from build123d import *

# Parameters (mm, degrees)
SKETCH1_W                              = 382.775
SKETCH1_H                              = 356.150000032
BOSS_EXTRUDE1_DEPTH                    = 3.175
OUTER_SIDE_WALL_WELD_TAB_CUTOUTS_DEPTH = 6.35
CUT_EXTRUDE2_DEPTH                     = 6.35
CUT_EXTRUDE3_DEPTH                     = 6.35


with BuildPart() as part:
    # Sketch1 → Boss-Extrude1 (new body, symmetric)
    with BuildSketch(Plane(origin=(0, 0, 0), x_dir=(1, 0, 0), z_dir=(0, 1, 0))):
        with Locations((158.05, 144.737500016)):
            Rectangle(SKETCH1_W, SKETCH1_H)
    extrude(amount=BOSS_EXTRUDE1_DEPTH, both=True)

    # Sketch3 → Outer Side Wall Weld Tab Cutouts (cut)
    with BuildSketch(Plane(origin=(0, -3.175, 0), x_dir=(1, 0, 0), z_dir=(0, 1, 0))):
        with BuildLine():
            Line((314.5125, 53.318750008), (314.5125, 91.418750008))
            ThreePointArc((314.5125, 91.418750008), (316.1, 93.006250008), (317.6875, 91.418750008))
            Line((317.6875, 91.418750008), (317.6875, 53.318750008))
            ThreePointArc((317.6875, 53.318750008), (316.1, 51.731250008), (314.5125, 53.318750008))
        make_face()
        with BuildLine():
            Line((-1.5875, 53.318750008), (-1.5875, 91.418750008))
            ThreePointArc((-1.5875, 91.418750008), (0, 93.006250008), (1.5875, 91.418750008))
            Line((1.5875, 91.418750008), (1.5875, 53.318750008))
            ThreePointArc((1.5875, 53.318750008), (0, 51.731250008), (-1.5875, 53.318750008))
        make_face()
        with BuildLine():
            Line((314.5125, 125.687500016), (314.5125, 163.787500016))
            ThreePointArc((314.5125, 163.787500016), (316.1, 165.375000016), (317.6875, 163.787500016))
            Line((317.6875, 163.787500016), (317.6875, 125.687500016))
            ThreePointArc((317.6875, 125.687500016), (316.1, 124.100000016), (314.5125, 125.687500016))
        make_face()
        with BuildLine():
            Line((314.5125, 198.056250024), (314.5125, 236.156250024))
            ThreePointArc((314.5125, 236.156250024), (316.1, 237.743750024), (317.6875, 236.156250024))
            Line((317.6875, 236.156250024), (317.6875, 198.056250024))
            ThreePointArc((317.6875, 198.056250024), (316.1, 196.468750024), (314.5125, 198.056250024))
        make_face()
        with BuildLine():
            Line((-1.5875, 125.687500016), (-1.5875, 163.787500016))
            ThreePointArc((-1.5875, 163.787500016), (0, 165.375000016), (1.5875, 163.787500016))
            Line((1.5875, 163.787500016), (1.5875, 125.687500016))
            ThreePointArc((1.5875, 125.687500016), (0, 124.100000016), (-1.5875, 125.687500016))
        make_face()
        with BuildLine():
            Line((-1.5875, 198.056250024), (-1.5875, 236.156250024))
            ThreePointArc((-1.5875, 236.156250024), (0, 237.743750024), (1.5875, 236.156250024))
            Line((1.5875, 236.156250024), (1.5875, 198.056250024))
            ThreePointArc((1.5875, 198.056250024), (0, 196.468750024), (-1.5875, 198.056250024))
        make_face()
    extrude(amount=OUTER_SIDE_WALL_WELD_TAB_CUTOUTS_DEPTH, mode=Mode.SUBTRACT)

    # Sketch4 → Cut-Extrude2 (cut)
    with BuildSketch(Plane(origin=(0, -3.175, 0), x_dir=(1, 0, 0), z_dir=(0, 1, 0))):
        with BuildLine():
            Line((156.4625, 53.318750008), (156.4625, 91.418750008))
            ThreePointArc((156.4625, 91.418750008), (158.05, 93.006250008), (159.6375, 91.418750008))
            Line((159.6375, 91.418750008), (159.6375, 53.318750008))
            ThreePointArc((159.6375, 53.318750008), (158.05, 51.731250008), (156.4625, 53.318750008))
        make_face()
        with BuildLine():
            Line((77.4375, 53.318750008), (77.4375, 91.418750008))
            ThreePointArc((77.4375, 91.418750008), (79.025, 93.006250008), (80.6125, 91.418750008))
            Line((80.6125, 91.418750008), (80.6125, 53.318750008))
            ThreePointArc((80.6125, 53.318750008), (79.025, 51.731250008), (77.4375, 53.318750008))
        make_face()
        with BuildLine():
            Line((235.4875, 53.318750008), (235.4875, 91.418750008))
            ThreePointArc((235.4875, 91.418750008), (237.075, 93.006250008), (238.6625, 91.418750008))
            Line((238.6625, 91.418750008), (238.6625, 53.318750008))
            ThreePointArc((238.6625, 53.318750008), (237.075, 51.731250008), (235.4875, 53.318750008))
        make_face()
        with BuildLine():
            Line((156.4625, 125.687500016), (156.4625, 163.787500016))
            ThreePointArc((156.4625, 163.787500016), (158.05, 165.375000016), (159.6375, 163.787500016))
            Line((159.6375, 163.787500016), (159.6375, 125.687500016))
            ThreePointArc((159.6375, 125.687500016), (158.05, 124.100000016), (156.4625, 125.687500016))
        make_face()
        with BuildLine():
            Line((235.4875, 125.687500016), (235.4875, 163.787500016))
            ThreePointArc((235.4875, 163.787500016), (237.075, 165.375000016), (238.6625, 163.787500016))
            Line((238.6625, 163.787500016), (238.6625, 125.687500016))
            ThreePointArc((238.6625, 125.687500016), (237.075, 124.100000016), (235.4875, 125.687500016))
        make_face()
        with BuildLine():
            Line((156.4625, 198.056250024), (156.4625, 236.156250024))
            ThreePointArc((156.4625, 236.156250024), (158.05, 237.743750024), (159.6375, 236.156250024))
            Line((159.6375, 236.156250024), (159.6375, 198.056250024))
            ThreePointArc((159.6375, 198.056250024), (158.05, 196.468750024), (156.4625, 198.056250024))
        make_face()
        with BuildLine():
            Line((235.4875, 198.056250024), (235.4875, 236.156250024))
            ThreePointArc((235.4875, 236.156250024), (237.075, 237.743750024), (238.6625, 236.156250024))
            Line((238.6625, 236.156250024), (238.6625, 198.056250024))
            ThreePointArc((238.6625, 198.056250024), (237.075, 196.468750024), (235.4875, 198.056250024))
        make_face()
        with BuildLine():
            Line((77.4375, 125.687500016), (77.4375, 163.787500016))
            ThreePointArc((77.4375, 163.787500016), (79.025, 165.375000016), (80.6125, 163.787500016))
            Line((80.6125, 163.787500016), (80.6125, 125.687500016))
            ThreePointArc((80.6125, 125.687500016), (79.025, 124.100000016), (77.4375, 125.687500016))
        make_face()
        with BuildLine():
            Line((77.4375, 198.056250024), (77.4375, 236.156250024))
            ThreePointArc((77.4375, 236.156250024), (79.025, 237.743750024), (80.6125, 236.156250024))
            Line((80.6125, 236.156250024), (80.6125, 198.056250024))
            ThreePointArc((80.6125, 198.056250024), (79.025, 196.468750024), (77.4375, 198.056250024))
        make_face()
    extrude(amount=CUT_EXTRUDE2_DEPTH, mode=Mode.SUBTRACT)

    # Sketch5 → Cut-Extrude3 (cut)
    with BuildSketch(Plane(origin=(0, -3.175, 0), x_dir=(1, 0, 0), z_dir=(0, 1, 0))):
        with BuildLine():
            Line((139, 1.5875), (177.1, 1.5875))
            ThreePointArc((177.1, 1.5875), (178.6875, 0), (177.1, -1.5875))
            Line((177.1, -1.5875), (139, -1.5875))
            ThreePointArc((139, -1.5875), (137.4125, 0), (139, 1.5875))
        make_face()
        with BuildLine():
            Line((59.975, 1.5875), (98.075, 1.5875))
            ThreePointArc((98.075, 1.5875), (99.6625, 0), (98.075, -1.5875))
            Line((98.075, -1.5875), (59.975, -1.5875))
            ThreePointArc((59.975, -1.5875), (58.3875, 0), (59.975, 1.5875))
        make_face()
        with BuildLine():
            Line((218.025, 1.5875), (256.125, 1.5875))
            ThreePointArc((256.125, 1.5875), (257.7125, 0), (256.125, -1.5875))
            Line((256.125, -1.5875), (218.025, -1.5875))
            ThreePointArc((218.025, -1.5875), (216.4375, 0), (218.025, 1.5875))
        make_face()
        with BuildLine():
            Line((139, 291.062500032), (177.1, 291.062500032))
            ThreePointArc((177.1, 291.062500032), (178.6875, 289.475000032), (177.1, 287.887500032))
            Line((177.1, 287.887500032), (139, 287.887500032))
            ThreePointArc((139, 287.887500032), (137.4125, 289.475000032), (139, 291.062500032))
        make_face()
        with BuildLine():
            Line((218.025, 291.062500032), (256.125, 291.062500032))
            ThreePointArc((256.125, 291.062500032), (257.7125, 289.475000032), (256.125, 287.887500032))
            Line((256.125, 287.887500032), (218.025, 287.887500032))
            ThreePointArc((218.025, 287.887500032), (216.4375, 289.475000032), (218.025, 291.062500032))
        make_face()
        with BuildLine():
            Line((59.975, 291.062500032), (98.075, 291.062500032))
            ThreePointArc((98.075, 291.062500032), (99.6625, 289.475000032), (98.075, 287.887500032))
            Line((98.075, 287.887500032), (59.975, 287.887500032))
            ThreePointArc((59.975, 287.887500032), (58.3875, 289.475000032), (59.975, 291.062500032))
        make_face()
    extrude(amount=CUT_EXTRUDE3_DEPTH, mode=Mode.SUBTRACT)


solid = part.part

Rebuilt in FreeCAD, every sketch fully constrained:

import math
import FreeCAD as App
import Part
import Sketcher

V = App.Vector
Q = App.Units.Quantity

doc = App.newDocument("Part")
body = doc.addObject("PartDesign::Body", "Body")

# Sketch on XZ plane
sketch1 = body.newObject("Sketcher::SketchObject", "Sketch")
sketch1.AttachmentSupport = (doc.getObject("XZ_Plane"), [""])
sketch1.MapMode = "FlatFace"
sketch1.addGeometry(Part.LineSegment(V(-33, -323, 0), V(-33, 33, 0)), False)
sketch1.addGeometry(Part.LineSegment(V(-33, 33, 0), V(349, 33, 0)), False)
sketch1.addGeometry(Part.LineSegment(V(349, 33, 0), V(349, -323, 0)), False)
sketch1.addGeometry(Part.LineSegment(V(349, -323, 0), V(-33, -323, 0)), False)
sketch1.addConstraint(Sketcher.Constraint("Coincident", 0, 2, 1, 1))
sketch1.addConstraint(Sketcher.Constraint("Coincident", 1, 2, 2, 1))
sketch1.addConstraint(Sketcher.Constraint("Coincident", 2, 2, 3, 1))
sketch1.addConstraint(Sketcher.Constraint("Coincident", 3, 2, 0, 1))
sketch1.addConstraint(Sketcher.Constraint("Vertical", 0))
sketch1.addConstraint(Sketcher.Constraint("Horizontal", 1))
sketch1.addConstraint(Sketcher.Constraint("Vertical", 2))
sketch1.addConstraint(Sketcher.Constraint("Horizontal", 3))
sketch1.addConstraint(Sketcher.Constraint("DistanceX", 0, 2, -1, 1, Q("1.3125 in")))
sketch1.addConstraint(Sketcher.Constraint("DistanceY", -1, 1, 0, 2, Q("1.3125 in")))
sketch1.addConstraint(Sketcher.Constraint("DistanceX", 1, 1, 1, 2, Q("382.775 mm")))
sketch1.addConstraint(Sketcher.Constraint("DistanceY", 0, 1, 0, 2, Q("356.15 mm")))
pad1 = body.newObject("PartDesign::Pad", "Pad")
pad1.Profile = sketch1
pad1.Length = Q("0.25 in")
pad1.Midplane = True

# Sketch on XZ plane
sketch2 = body.newObject("Sketcher::SketchObject", "Sketch001")
sketch2.AttachmentSupport = (doc.getObject("XZ_Plane"), [""])
sketch2.MapMode = "FlatFace"
sketch2.AttachmentOffset = App.Placement(V(0, 0, 0.125 * 25.4), App.Rotation())
sketch2.addGeometry(Part.LineSegment(V(314.5, -91.4, 0), V(314.5, -53.3, 0)), False)
sketch2.addGeometry(Part.ArcOfCircle(Part.Circle(V(316.1, -53.3, 0), V(0, 0, 1), 1.6), math.radians(0), math.radians(180)), False)
sketch2.addGeometry(Part.LineSegment(V(317.7, -53.3, 0), V(317.7, -91.4, 0)), False)
sketch2.addGeometry(Part.ArcOfCircle(Part.Circle(V(316.1, -91.4, 0), V(0, 0, 1), 1.6), math.radians(180), math.radians(360)), False)
sketch2.addGeometry(Part.LineSegment(V(-1.6, -91.4, 0), V(-1.6, -53.3, 0)), False)
sketch2.addGeometry(Part.ArcOfCircle(Part.Circle(V(0, -53.3, 0), V(0, 0, 1), 1.6), math.radians(0), math.radians(180)), False)
sketch2.addGeometry(Part.LineSegment(V(1.6, -53.3, 0), V(1.6, -91.4, 0)), False)
sketch2.addGeometry(Part.ArcOfCircle(Part.Circle(V(0, -91.4, 0), V(0, 0, 1), 1.6), math.radians(180), math.radians(360)), False)
sketch2.addGeometry(Part.LineSegment(V(314.5, -163.8, 0), V(314.5, -125.7, 0)), False)
sketch2.addGeometry(Part.ArcOfCircle(Part.Circle(V(316.1, -125.7, 0), V(0, 0, 1), 1.6), math.radians(0), math.radians(180)), False)
sketch2.addGeometry(Part.LineSegment(V(317.7, -125.7, 0), V(317.7, -163.8, 0)), False)
sketch2.addGeometry(Part.ArcOfCircle(Part.Circle(V(316.1, -163.8, 0), V(0, 0, 1), 1.6), math.radians(180), math.radians(360)), False)
sketch2.addGeometry(Part.LineSegment(V(314.5, -236.2, 0), V(314.5, -198.1, 0)), False)
sketch2.addGeometry(Part.ArcOfCircle(Part.Circle(V(316.1, -198.1, 0), V(0, 0, 1), 1.6), math.radians(0), math.radians(180)), False)
sketch2.addGeometry(Part.LineSegment(V(317.7, -198.1, 0), V(317.7, -236.2, 0)), False)
sketch2.addGeometry(Part.ArcOfCircle(Part.Circle(V(316.1, -236.2, 0), V(0, 0, 1), 1.6), math.radians(180), math.radians(360)), False)
sketch2.addGeometry(Part.LineSegment(V(-1.6, -163.8, 0), V(-1.6, -125.7, 0)), False)
sketch2.addGeometry(Part.ArcOfCircle(Part.Circle(V(0, -125.7, 0), V(0, 0, 1), 1.6), math.radians(0), math.radians(180)), False)
sketch2.addGeometry(Part.LineSegment(V(1.6, -125.7, 0), V(1.6, -163.8, 0)), False)
sketch2.addGeometry(Part.ArcOfCircle(Part.Circle(V(0, -163.8, 0), V(0, 0, 1), 1.6), math.radians(180), math.radians(360)), False)
sketch2.addGeometry(Part.LineSegment(V(-1.6, -236.2, 0), V(-1.6, -198.1, 0)), False)
sketch2.addGeometry(Part.ArcOfCircle(Part.Circle(V(0, -198.1, 0), V(0, 0, 1), 1.6), math.radians(0), math.radians(180)), False)
sketch2.addGeometry(Part.LineSegment(V(1.6, -198.1, 0), V(1.6, -236.2, 0)), False)
sketch2.addGeometry(Part.ArcOfCircle(Part.Circle(V(0, -236.2, 0), V(0, 0, 1), 1.6), math.radians(180), math.radians(360)), False)
sketch2.addConstraint(Sketcher.Constraint("Tangent", 0, 2, 1, 2))
sketch2.addConstraint(Sketcher.Constraint("Tangent", 1, 1, 2, 1))
sketch2.addConstraint(Sketcher.Constraint("Tangent", 2, 2, 3, 2))
sketch2.addConstraint(Sketcher.Constraint("Tangent", 3, 1, 0, 1))
sketch2.addConstraint(Sketcher.Constraint("Tangent", 4, 2, 5, 2))
sketch2.addConstraint(Sketcher.Constraint("Tangent", 5, 1, 6, 1))
sketch2.addConstraint(Sketcher.Constraint("Tangent", 6, 2, 7, 2))
sketch2.addConstraint(Sketcher.Constraint("Tangent", 7, 1, 4, 1))
sketch2.addConstraint(Sketcher.Constraint("Tangent", 8, 2, 9, 2))
sketch2.addConstraint(Sketcher.Constraint("Tangent", 9, 1, 10, 1))
sketch2.addConstraint(Sketcher.Constraint("Tangent", 10, 2, 11, 2))
sketch2.addConstraint(Sketcher.Constraint("Tangent", 11, 1, 8, 1))
sketch2.addConstraint(Sketcher.Constraint("Tangent", 12, 2, 13, 2))
sketch2.addConstraint(Sketcher.Constraint("Tangent", 13, 1, 14, 1))
sketch2.addConstraint(Sketcher.Constraint("Tangent", 14, 2, 15, 2))
sketch2.addConstraint(Sketcher.Constraint("Tangent", 15, 1, 12, 1))
sketch2.addConstraint(Sketcher.Constraint("Tangent", 16, 2, 17, 2))
sketch2.addConstraint(Sketcher.Constraint("Tangent", 17, 1, 18, 1))
sketch2.addConstraint(Sketcher.Constraint("Tangent", 18, 2, 19, 2))
sketch2.addConstraint(Sketcher.Constraint("Tangent", 19, 1, 16, 1))
sketch2.addConstraint(Sketcher.Constraint("Tangent", 20, 2, 21, 2))
sketch2.addConstraint(Sketcher.Constraint("Tangent", 21, 1, 22, 1))
sketch2.addConstraint(Sketcher.Constraint("Tangent", 22, 2, 23, 2))
sketch2.addConstraint(Sketcher.Constraint("Tangent", 23, 1, 20, 1))
sketch2.addConstraint(Sketcher.Constraint("Vertical", 0))
sketch2.addConstraint(Sketcher.Constraint("Vertical", 2))
sketch2.addConstraint(Sketcher.Constraint("Vertical", 4))
sketch2.addConstraint(Sketcher.Constraint("Vertical", 6))
sketch2.addConstraint(Sketcher.Constraint("Vertical", 8))
sketch2.addConstraint(Sketcher.Constraint("Vertical", 10))
sketch2.addConstraint(Sketcher.Constraint("Vertical", 12))
sketch2.addConstraint(Sketcher.Constraint("Vertical", 14))
sketch2.addConstraint(Sketcher.Constraint("Vertical", 16))
sketch2.addConstraint(Sketcher.Constraint("Vertical", 18))
sketch2.addConstraint(Sketcher.Constraint("Vertical", 20))
sketch2.addConstraint(Sketcher.Constraint("Vertical", 22))
sketch2.addConstraint(Sketcher.Constraint("Equal", 3, 5))
sketch2.addConstraint(Sketcher.Constraint("Equal", 7, 9))
sketch2.addConstraint(Sketcher.Constraint("Equal", 11, 13))
sketch2.addConstraint(Sketcher.Constraint("Equal", 15, 17))
sketch2.addConstraint(Sketcher.Constraint("Equal", 19, 21))
sketch2.addConstraint(Sketcher.Constraint("PointOnObject", 5, 3, -2))
sketch2.addConstraint(Sketcher.Constraint("PointOnObject", 17, 3, -2))
sketch2.addConstraint(Sketcher.Constraint("PointOnObject", 21, 3, -2))
sketch2.addConstraint(Sketcher.Constraint("Horizontal", 1, 3, 5, 3))
sketch2.addConstraint(Sketcher.Constraint("Horizontal", 3, 3, 7, 3))
sketch2.addConstraint(Sketcher.Constraint("Horizontal", 9, 3, 17, 3))
sketch2.addConstraint(Sketcher.Constraint("Horizontal", 11, 3, 19, 3))
sketch2.addConstraint(Sketcher.Constraint("Horizontal", 13, 3, 21, 3))
sketch2.addConstraint(Sketcher.Constraint("Horizontal", 15, 3, 23, 3))
sketch2.addConstraint(Sketcher.Constraint("Vertical", 3, 3, 9, 3))
sketch2.addConstraint(Sketcher.Constraint("Vertical", 11, 3, 13, 3))
sketch2.addConstraint(Sketcher.Constraint("Equal", 6, 8))
sketch2.addConstraint(Sketcher.Constraint("Equal", 10, 12))
sketch2.addConstraint(Sketcher.Constraint("DistanceY", 0, 1, 0, 2, Q("1.5 in")))
sketch2.addConstraint(Sketcher.Constraint("Radius", 1, Q("0.0625 in")))
sketch2.addConstraint(Sketcher.Constraint("DistanceX", -1, 1, 1, 3, Q("316.1 mm")))
sketch2.addConstraint(Sketcher.Constraint("DistanceY", 9, 3, -1, 1, Q("125.6875 mm")))
sketch2.addConstraint(Sketcher.Constraint("DistanceY", 13, 3, 3, 3, Q("106.6375 mm")))
sketch2.addConstraint(Sketcher.Constraint("DistanceY", 1, 3, -1, 1, Q("53.31875 mm")))
pocket1 = body.newObject("PartDesign::Pocket", "Pocket")
pocket1.Profile = sketch2
pocket1.Length = Q("0.25 in")

# Sketch on XZ plane
sketch3 = body.newObject("Sketcher::SketchObject", "Sketch002")
sketch3.AttachmentSupport = (doc.getObject("XZ_Plane"), [""])
sketch3.MapMode = "FlatFace"
sketch3.AttachmentOffset = App.Placement(V(0, 0, 0.125 * 25.4), App.Rotation())
sketch3.addGeometry(Part.LineSegment(V(156.5, -91.4, 0), V(156.5, -53.3, 0)), False)
sketch3.addGeometry(Part.ArcOfCircle(Part.Circle(V(158.1, -53.3, 0), V(0, 0, 1), 1.6), math.radians(0), math.radians(180)), False)
sketch3.addGeometry(Part.LineSegment(V(159.6, -53.3, 0), V(159.6, -91.4, 0)), False)
sketch3.addGeometry(Part.ArcOfCircle(Part.Circle(V(158.1, -91.4, 0), V(0, 0, 1), 1.6), math.radians(180), math.radians(360)), False)
sketch3.addGeometry(Part.LineSegment(V(77.4, -91.4, 0), V(77.4, -53.3, 0)), False)
sketch3.addGeometry(Part.ArcOfCircle(Part.Circle(V(79, -53.3, 0), V(0, 0, 1), 1.6), math.radians(0), math.radians(180)), False)
sketch3.addGeometry(Part.LineSegment(V(80.6, -53.3, 0), V(80.6, -91.4, 0)), False)
sketch3.addGeometry(Part.ArcOfCircle(Part.Circle(V(79, -91.4, 0), V(0, 0, 1), 1.6), math.radians(180), math.radians(360)), False)
sketch3.addGeometry(Part.LineSegment(V(235.5, -91.4, 0), V(235.5, -53.3, 0)), False)
sketch3.addGeometry(Part.ArcOfCircle(Part.Circle(V(237.1, -53.3, 0), V(0, 0, 1), 1.6), math.radians(0), math.radians(180)), False)
sketch3.addGeometry(Part.LineSegment(V(238.7, -53.3, 0), V(238.7, -91.4, 0)), False)
sketch3.addGeometry(Part.ArcOfCircle(Part.Circle(V(237.1, -91.4, 0), V(0, 0, 1), 1.6), math.radians(180), math.radians(360)), False)
sketch3.addGeometry(Part.LineSegment(V(156.5, -163.8, 0), V(156.5, -125.7, 0)), False)
sketch3.addGeometry(Part.ArcOfCircle(Part.Circle(V(158.1, -125.7, 0), V(0, 0, 1), 1.6), math.radians(0), math.radians(180)), False)
sketch3.addGeometry(Part.LineSegment(V(159.6, -125.7, 0), V(159.6, -163.8, 0)), False)
sketch3.addGeometry(Part.ArcOfCircle(Part.Circle(V(158.1, -163.8, 0), V(0, 0, 1), 1.6), math.radians(180), math.radians(360)), False)
sketch3.addGeometry(Part.LineSegment(V(235.5, -163.8, 0), V(235.5, -125.7, 0)), False)
sketch3.addGeometry(Part.ArcOfCircle(Part.Circle(V(237.1, -125.7, 0), V(0, 0, 1), 1.6), math.radians(0), math.radians(180)), False)
sketch3.addGeometry(Part.LineSegment(V(238.7, -125.7, 0), V(238.7, -163.8, 0)), False)
sketch3.addGeometry(Part.ArcOfCircle(Part.Circle(V(237.1, -163.8, 0), V(0, 0, 1), 1.6), math.radians(180), math.radians(360)), False)
sketch3.addGeometry(Part.LineSegment(V(156.5, -236.2, 0), V(156.5, -198.1, 0)), False)
sketch3.addGeometry(Part.ArcOfCircle(Part.Circle(V(158.1, -198.1, 0), V(0, 0, 1), 1.6), math.radians(0), math.radians(180)), False)
sketch3.addGeometry(Part.LineSegment(V(159.6, -198.1, 0), V(159.6, -236.2, 0)), False)
sketch3.addGeometry(Part.ArcOfCircle(Part.Circle(V(158.1, -236.2, 0), V(0, 0, 1), 1.6), math.radians(180), math.radians(360)), False)
sketch3.addGeometry(Part.LineSegment(V(235.5, -236.2, 0), V(235.5, -198.1, 0)), False)
sketch3.addGeometry(Part.ArcOfCircle(Part.Circle(V(237.1, -198.1, 0), V(0, 0, 1), 1.6), math.radians(0), math.radians(180)), False)
sketch3.addGeometry(Part.LineSegment(V(238.7, -198.1, 0), V(238.7, -236.2, 0)), False)
sketch3.addGeometry(Part.ArcOfCircle(Part.Circle(V(237.1, -236.2, 0), V(0, 0, 1), 1.6), math.radians(180), math.radians(360)), False)
sketch3.addGeometry(Part.LineSegment(V(77.4, -163.8, 0), V(77.4, -125.7, 0)), False)
sketch3.addGeometry(Part.ArcOfCircle(Part.Circle(V(79, -125.7, 0), V(0, 0, 1), 1.6), math.radians(0), math.radians(180)), False)
sketch3.addGeometry(Part.LineSegment(V(80.6, -125.7, 0), V(80.6, -163.8, 0)), False)
sketch3.addGeometry(Part.ArcOfCircle(Part.Circle(V(79, -163.8, 0), V(0, 0, 1), 1.6), math.radians(180), math.radians(360)), False)
sketch3.addGeometry(Part.LineSegment(V(77.4, -236.2, 0), V(77.4, -198.1, 0)), False)
sketch3.addGeometry(Part.ArcOfCircle(Part.Circle(V(79, -198.1, 0), V(0, 0, 1), 1.6), math.radians(0), math.radians(180)), False)
sketch3.addGeometry(Part.LineSegment(V(80.6, -198.1, 0), V(80.6, -236.2, 0)), False)
sketch3.addGeometry(Part.ArcOfCircle(Part.Circle(V(79, -236.2, 0), V(0, 0, 1), 1.6), math.radians(180), math.radians(360)), False)
sketch3.addConstraint(Sketcher.Constraint("Tangent", 0, 2, 1, 2))
sketch3.addConstraint(Sketcher.Constraint("Tangent", 1, 1, 2, 1))
sketch3.addConstraint(Sketcher.Constraint("Tangent", 2, 2, 3, 2))
sketch3.addConstraint(Sketcher.Constraint("Tangent", 3, 1, 0, 1))
sketch3.addConstraint(Sketcher.Constraint("Tangent", 4, 2, 5, 2))
sketch3.addConstraint(Sketcher.Constraint("Tangent", 5, 1, 6, 1))
sketch3.addConstraint(Sketcher.Constraint("Tangent", 6, 2, 7, 2))
sketch3.addConstraint(Sketcher.Constraint("Tangent", 7, 1, 4, 1))
sketch3.addConstraint(Sketcher.Constraint("Tangent", 8, 2, 9, 2))
sketch3.addConstraint(Sketcher.Constraint("Tangent", 9, 1, 10, 1))
sketch3.addConstraint(Sketcher.Constraint("Tangent", 10, 2, 11, 2))
sketch3.addConstraint(Sketcher.Constraint("Tangent", 11, 1, 8, 1))
sketch3.addConstraint(Sketcher.Constraint("Tangent", 12, 2, 13, 2))
sketch3.addConstraint(Sketcher.Constraint("Tangent", 13, 1, 14, 1))
sketch3.addConstraint(Sketcher.Constraint("Tangent", 14, 2, 15, 2))
sketch3.addConstraint(Sketcher.Constraint("Tangent", 15, 1, 12, 1))
sketch3.addConstraint(Sketcher.Constraint("Tangent", 16, 2, 17, 2))
sketch3.addConstraint(Sketcher.Constraint("Tangent", 17, 1, 18, 1))
sketch3.addConstraint(Sketcher.Constraint("Tangent", 18, 2, 19, 2))
sketch3.addConstraint(Sketcher.Constraint("Tangent", 19, 1, 16, 1))
sketch3.addConstraint(Sketcher.Constraint("Tangent", 20, 2, 21, 2))
sketch3.addConstraint(Sketcher.Constraint("Tangent", 21, 1, 22, 1))
sketch3.addConstraint(Sketcher.Constraint("Tangent", 22, 2, 23, 2))
sketch3.addConstraint(Sketcher.Constraint("Tangent", 23, 1, 20, 1))
sketch3.addConstraint(Sketcher.Constraint("Tangent", 24, 2, 25, 2))
sketch3.addConstraint(Sketcher.Constraint("Tangent", 25, 1, 26, 1))
sketch3.addConstraint(Sketcher.Constraint("Tangent", 26, 2, 27, 2))
sketch3.addConstraint(Sketcher.Constraint("Tangent", 27, 1, 24, 1))
sketch3.addConstraint(Sketcher.Constraint("Tangent", 28, 2, 29, 2))
sketch3.addConstraint(Sketcher.Constraint("Tangent", 29, 1, 30, 1))
sketch3.addConstraint(Sketcher.Constraint("Tangent", 30, 2, 31, 2))
sketch3.addConstraint(Sketcher.Constraint("Tangent", 31, 1, 28, 1))
sketch3.addConstraint(Sketcher.Constraint("Tangent", 32, 2, 33, 2))
sketch3.addConstraint(Sketcher.Constraint("Tangent", 33, 1, 34, 1))
sketch3.addConstraint(Sketcher.Constraint("Tangent", 34, 2, 35, 2))
sketch3.addConstraint(Sketcher.Constraint("Tangent", 35, 1, 32, 1))
sketch3.addConstraint(Sketcher.Constraint("Vertical", 0))
sketch3.addConstraint(Sketcher.Constraint("Vertical", 2))
sketch3.addConstraint(Sketcher.Constraint("Vertical", 4))
sketch3.addConstraint(Sketcher.Constraint("Vertical", 6))
sketch3.addConstraint(Sketcher.Constraint("Vertical", 8))
sketch3.addConstraint(Sketcher.Constraint("Vertical", 10))
sketch3.addConstraint(Sketcher.Constraint("Vertical", 12))
sketch3.addConstraint(Sketcher.Constraint("Vertical", 14))
sketch3.addConstraint(Sketcher.Constraint("Vertical", 16))
sketch3.addConstraint(Sketcher.Constraint("Vertical", 18))
sketch3.addConstraint(Sketcher.Constraint("Vertical", 20))
sketch3.addConstraint(Sketcher.Constraint("Vertical", 22))
sketch3.addConstraint(Sketcher.Constraint("Vertical", 24))
sketch3.addConstraint(Sketcher.Constraint("Vertical", 26))
sketch3.addConstraint(Sketcher.Constraint("Vertical", 28))
sketch3.addConstraint(Sketcher.Constraint("Vertical", 30))
sketch3.addConstraint(Sketcher.Constraint("Vertical", 32))
sketch3.addConstraint(Sketcher.Constraint("Vertical", 34))
sketch3.addConstraint(Sketcher.Constraint("Equal", 3, 5))
sketch3.addConstraint(Sketcher.Constraint("Equal", 7, 9))
sketch3.addConstraint(Sketcher.Constraint("Equal", 11, 13))
sketch3.addConstraint(Sketcher.Constraint("Equal", 15, 17))
sketch3.addConstraint(Sketcher.Constraint("Equal", 19, 21))
sketch3.addConstraint(Sketcher.Constraint("Equal", 23, 25))
sketch3.addConstraint(Sketcher.Constraint("Equal", 27, 29))
sketch3.addConstraint(Sketcher.Constraint("Equal", 31, 33))
sketch3.addConstraint(Sketcher.Constraint("Horizontal", 1, 3, 5, 3))
sketch3.addConstraint(Sketcher.Constraint("Horizontal", 3, 3, 7, 3))
sketch3.addConstraint(Sketcher.Constraint("Horizontal", 5, 3, 9, 3))
sketch3.addConstraint(Sketcher.Constraint("Horizontal", 7, 3, 11, 3))
sketch3.addConstraint(Sketcher.Constraint("Horizontal", 13, 3, 17, 3))
sketch3.addConstraint(Sketcher.Constraint("Horizontal", 15, 3, 19, 3))
sketch3.addConstraint(Sketcher.Constraint("Horizontal", 21, 3, 25, 3))
sketch3.addConstraint(Sketcher.Constraint("Horizontal", 23, 3, 27, 3))
sketch3.addConstraint(Sketcher.Constraint("Horizontal", 17, 3, 29, 3))
sketch3.addConstraint(Sketcher.Constraint("Horizontal", 19, 3, 31, 3))
sketch3.addConstraint(Sketcher.Constraint("Horizontal", 25, 3, 33, 3))
sketch3.addConstraint(Sketcher.Constraint("Horizontal", 27, 3, 35, 3))
sketch3.addConstraint(Sketcher.Constraint("Vertical", 3, 3, 13, 3))
sketch3.addConstraint(Sketcher.Constraint("Vertical", 11, 3, 17, 3))
sketch3.addConstraint(Sketcher.Constraint("Vertical", 15, 3, 21, 3))
sketch3.addConstraint(Sketcher.Constraint("Vertical", 19, 3, 25, 3))
sketch3.addConstraint(Sketcher.Constraint("Vertical", 7, 3, 29, 3))
sketch3.addConstraint(Sketcher.Constraint("Vertical", 31, 3, 33, 3))
sketch3.addConstraint(Sketcher.Constraint("Equal", 10, 12))
sketch3.addConstraint(Sketcher.Constraint("Equal", 18, 20))
sketch3.addConstraint(Sketcher.Constraint("DistanceY", 0, 1, 0, 2, Q("1.5 in")))
sketch3.addConstraint(Sketcher.Constraint("Radius", 1, Q("0.0625 in")))
sketch3.addConstraint(Sketcher.Constraint("DistanceX", -1, 1, 1, 3, Q("158.05 mm")))
sketch3.addConstraint(Sketcher.Constraint("DistanceX", -1, 1, 5, 3, Q("79.025 mm")))
sketch3.addConstraint(Sketcher.Constraint("DistanceX", -1, 1, 9, 3, Q("237.075 mm")))
sketch3.addConstraint(Sketcher.Constraint("DistanceY", 13, 3, -1, 1, Q("125.6875 mm")))
sketch3.addConstraint(Sketcher.Constraint("DistanceY", 21, 3, 3, 3, Q("106.6375 mm")))
sketch3.addConstraint(Sketcher.Constraint("DistanceY", 1, 3, -1, 1, Q("53.31875 mm")))
pocket2 = body.newObject("PartDesign::Pocket", "Pocket001")
pocket2.Profile = sketch3
pocket2.Length = Q("0.25 in")

# Sketch on XZ plane
sketch4 = body.newObject("Sketcher::SketchObject", "Sketch003")
sketch4.AttachmentSupport = (doc.getObject("XZ_Plane"), [""])
sketch4.MapMode = "FlatFace"
sketch4.AttachmentOffset = App.Placement(V(0, 0, 0.125 * 25.4), App.Rotation())
sketch4.addGeometry(Part.LineSegment(V(177.1, -1.6, 0), V(139, -1.6, 0)), False)
sketch4.addGeometry(Part.ArcOfCircle(Part.Circle(V(139, 0, 0), V(0, 0, 1), 1.6), math.radians(90), math.radians(270)), False)
sketch4.addGeometry(Part.LineSegment(V(139, 1.6, 0), V(177.1, 1.6, 0)), False)
sketch4.addGeometry(Part.ArcOfCircle(Part.Circle(V(177.1, 0, 0), V(0, 0, 1), 1.6), math.radians(-90), math.radians(90)), False)
sketch4.addGeometry(Part.LineSegment(V(98.1, -1.6, 0), V(60, -1.6, 0)), False)
sketch4.addGeometry(Part.ArcOfCircle(Part.Circle(V(60, 0, 0), V(0, 0, 1), 1.6), math.radians(90), math.radians(270)), False)
sketch4.addGeometry(Part.LineSegment(V(60, 1.6, 0), V(98.1, 1.6, 0)), False)
sketch4.addGeometry(Part.ArcOfCircle(Part.Circle(V(98.1, 0, 0), V(0, 0, 1), 1.6), math.radians(-90), math.radians(90)), False)
sketch4.addGeometry(Part.LineSegment(V(256.1, -1.6, 0), V(218, -1.6, 0)), False)
sketch4.addGeometry(Part.ArcOfCircle(Part.Circle(V(218, 0, 0), V(0, 0, 1), 1.6), math.radians(90), math.radians(270)), False)
sketch4.addGeometry(Part.LineSegment(V(218, 1.6, 0), V(256.1, 1.6, 0)), False)
sketch4.addGeometry(Part.ArcOfCircle(Part.Circle(V(256.1, 0, 0), V(0, 0, 1), 1.6), math.radians(-90), math.radians(90)), False)
sketch4.addGeometry(Part.LineSegment(V(177.1, -291.1, 0), V(139, -291.1, 0)), False)
sketch4.addGeometry(Part.ArcOfCircle(Part.Circle(V(139, -289.5, 0), V(0, 0, 1), 1.6), math.radians(90), math.radians(270)), False)
sketch4.addGeometry(Part.LineSegment(V(139, -287.9, 0), V(177.1, -287.9, 0)), False)
sketch4.addGeometry(Part.ArcOfCircle(Part.Circle(V(177.1, -289.5, 0), V(0, 0, 1), 1.6), math.radians(-90), math.radians(90)), False)
sketch4.addGeometry(Part.LineSegment(V(256.1, -291.1, 0), V(218, -291.1, 0)), False)
sketch4.addGeometry(Part.ArcOfCircle(Part.Circle(V(218, -289.5, 0), V(0, 0, 1), 1.6), math.radians(90), math.radians(270)), False)
sketch4.addGeometry(Part.LineSegment(V(218, -287.9, 0), V(256.1, -287.9, 0)), False)
sketch4.addGeometry(Part.ArcOfCircle(Part.Circle(V(256.1, -289.5, 0), V(0, 0, 1), 1.6), math.radians(-90), math.radians(90)), False)
sketch4.addGeometry(Part.LineSegment(V(98.1, -291.1, 0), V(60, -291.1, 0)), False)
sketch4.addGeometry(Part.ArcOfCircle(Part.Circle(V(60, -289.5, 0), V(0, 0, 1), 1.6), math.radians(90), math.radians(270)), False)
sketch4.addGeometry(Part.LineSegment(V(60, -287.9, 0), V(98.1, -287.9, 0)), False)
sketch4.addGeometry(Part.ArcOfCircle(Part.Circle(V(98.1, -289.5, 0), V(0, 0, 1), 1.6), math.radians(-90), math.radians(90)), False)
sketch4.addConstraint(Sketcher.Constraint("Tangent", 0, 2, 1, 2))
sketch4.addConstraint(Sketcher.Constraint("Tangent", 1, 1, 2, 1))
sketch4.addConstraint(Sketcher.Constraint("Tangent", 2, 2, 3, 2))
sketch4.addConstraint(Sketcher.Constraint("Tangent", 3, 1, 0, 1))
sketch4.addConstraint(Sketcher.Constraint("Tangent", 4, 2, 5, 2))
sketch4.addConstraint(Sketcher.Constraint("Tangent", 5, 1, 6, 1))
sketch4.addConstraint(Sketcher.Constraint("Tangent", 6, 2, 7, 2))
sketch4.addConstraint(Sketcher.Constraint("Tangent", 7, 1, 4, 1))
sketch4.addConstraint(Sketcher.Constraint("Tangent", 8, 2, 9, 2))
sketch4.addConstraint(Sketcher.Constraint("Tangent", 9, 1, 10, 1))
sketch4.addConstraint(Sketcher.Constraint("Tangent", 10, 2, 11, 2))
sketch4.addConstraint(Sketcher.Constraint("Tangent", 11, 1, 8, 1))
sketch4.addConstraint(Sketcher.Constraint("Tangent", 12, 2, 13, 2))
sketch4.addConstraint(Sketcher.Constraint("Tangent", 13, 1, 14, 1))
sketch4.addConstraint(Sketcher.Constraint("Tangent", 14, 2, 15, 2))
sketch4.addConstraint(Sketcher.Constraint("Tangent", 15, 1, 12, 1))
sketch4.addConstraint(Sketcher.Constraint("Tangent", 16, 2, 17, 2))
sketch4.addConstraint(Sketcher.Constraint("Tangent", 17, 1, 18, 1))
sketch4.addConstraint(Sketcher.Constraint("Tangent", 18, 2, 19, 2))
sketch4.addConstraint(Sketcher.Constraint("Tangent", 19, 1, 16, 1))
sketch4.addConstraint(Sketcher.Constraint("Tangent", 20, 2, 21, 2))
sketch4.addConstraint(Sketcher.Constraint("Tangent", 21, 1, 22, 1))
sketch4.addConstraint(Sketcher.Constraint("Tangent", 22, 2, 23, 2))
sketch4.addConstraint(Sketcher.Constraint("Tangent", 23, 1, 20, 1))
sketch4.addConstraint(Sketcher.Constraint("Horizontal", 0))
sketch4.addConstraint(Sketcher.Constraint("Horizontal", 2))
sketch4.addConstraint(Sketcher.Constraint("Horizontal", 4))
sketch4.addConstraint(Sketcher.Constraint("Horizontal", 6))
sketch4.addConstraint(Sketcher.Constraint("Horizontal", 8))
sketch4.addConstraint(Sketcher.Constraint("Horizontal", 10))
sketch4.addConstraint(Sketcher.Constraint("Horizontal", 12))
sketch4.addConstraint(Sketcher.Constraint("Horizontal", 14))
sketch4.addConstraint(Sketcher.Constraint("Horizontal", 16))
sketch4.addConstraint(Sketcher.Constraint("Horizontal", 18))
sketch4.addConstraint(Sketcher.Constraint("Horizontal", 20))
sketch4.addConstraint(Sketcher.Constraint("Horizontal", 22))
sketch4.addConstraint(Sketcher.Constraint("Equal", 3, 5))
sketch4.addConstraint(Sketcher.Constraint("Equal", 7, 9))
sketch4.addConstraint(Sketcher.Constraint("Equal", 11, 13))
sketch4.addConstraint(Sketcher.Constraint("Equal", 15, 17))
sketch4.addConstraint(Sketcher.Constraint("Equal", 19, 21))
sketch4.addConstraint(Sketcher.Constraint("PointOnObject", 1, 3, -1))
sketch4.addConstraint(Sketcher.Constraint("PointOnObject", 5, 3, -1))
sketch4.addConstraint(Sketcher.Constraint("PointOnObject", 9, 3, -1))
sketch4.addConstraint(Sketcher.Constraint("Horizontal", 15, 3, 17, 3))
sketch4.addConstraint(Sketcher.Constraint("Horizontal", 19, 3, 21, 3))
sketch4.addConstraint(Sketcher.Constraint("Vertical", 1, 3, 13, 3))
sketch4.addConstraint(Sketcher.Constraint("Vertical", 3, 3, 15, 3))
sketch4.addConstraint(Sketcher.Constraint("Vertical", 9, 3, 17, 3))
sketch4.addConstraint(Sketcher.Constraint("Vertical", 11, 3, 19, 3))
sketch4.addConstraint(Sketcher.Constraint("Vertical", 5, 3, 21, 3))
sketch4.addConstraint(Sketcher.Constraint("Vertical", 7, 3, 23, 3))
sketch4.addConstraint(Sketcher.Constraint("Equal", 2, 4))
sketch4.addConstraint(Sketcher.Constraint("Equal", 6, 8))
sketch4.addConstraint(Sketcher.Constraint("DistanceX", 0, 2, 0, 1, Q("1.5 in")))
sketch4.addConstraint(Sketcher.Constraint("Radius", 1, Q("0.0625 in")))
sketch4.addConstraint(Sketcher.Constraint("DistanceX", -1, 1, 1, 3, Q("139 mm")))
sketch4.addConstraint(Sketcher.Constraint("DistanceX", -1, 1, 5, 3, Q("59.975 mm")))
sketch4.addConstraint(Sketcher.Constraint("DistanceX", -1, 1, 9, 3, Q("218.025 mm")))
sketch4.addConstraint(Sketcher.Constraint("DistanceY", 13, 3, -1, 1, Q("289.475 mm")))
pocket3 = body.newObject("PartDesign::Pocket", "Pocket002")
pocket3.Profile = sketch4
pocket3.Length = Q("0.25 in")

doc.recompute()
